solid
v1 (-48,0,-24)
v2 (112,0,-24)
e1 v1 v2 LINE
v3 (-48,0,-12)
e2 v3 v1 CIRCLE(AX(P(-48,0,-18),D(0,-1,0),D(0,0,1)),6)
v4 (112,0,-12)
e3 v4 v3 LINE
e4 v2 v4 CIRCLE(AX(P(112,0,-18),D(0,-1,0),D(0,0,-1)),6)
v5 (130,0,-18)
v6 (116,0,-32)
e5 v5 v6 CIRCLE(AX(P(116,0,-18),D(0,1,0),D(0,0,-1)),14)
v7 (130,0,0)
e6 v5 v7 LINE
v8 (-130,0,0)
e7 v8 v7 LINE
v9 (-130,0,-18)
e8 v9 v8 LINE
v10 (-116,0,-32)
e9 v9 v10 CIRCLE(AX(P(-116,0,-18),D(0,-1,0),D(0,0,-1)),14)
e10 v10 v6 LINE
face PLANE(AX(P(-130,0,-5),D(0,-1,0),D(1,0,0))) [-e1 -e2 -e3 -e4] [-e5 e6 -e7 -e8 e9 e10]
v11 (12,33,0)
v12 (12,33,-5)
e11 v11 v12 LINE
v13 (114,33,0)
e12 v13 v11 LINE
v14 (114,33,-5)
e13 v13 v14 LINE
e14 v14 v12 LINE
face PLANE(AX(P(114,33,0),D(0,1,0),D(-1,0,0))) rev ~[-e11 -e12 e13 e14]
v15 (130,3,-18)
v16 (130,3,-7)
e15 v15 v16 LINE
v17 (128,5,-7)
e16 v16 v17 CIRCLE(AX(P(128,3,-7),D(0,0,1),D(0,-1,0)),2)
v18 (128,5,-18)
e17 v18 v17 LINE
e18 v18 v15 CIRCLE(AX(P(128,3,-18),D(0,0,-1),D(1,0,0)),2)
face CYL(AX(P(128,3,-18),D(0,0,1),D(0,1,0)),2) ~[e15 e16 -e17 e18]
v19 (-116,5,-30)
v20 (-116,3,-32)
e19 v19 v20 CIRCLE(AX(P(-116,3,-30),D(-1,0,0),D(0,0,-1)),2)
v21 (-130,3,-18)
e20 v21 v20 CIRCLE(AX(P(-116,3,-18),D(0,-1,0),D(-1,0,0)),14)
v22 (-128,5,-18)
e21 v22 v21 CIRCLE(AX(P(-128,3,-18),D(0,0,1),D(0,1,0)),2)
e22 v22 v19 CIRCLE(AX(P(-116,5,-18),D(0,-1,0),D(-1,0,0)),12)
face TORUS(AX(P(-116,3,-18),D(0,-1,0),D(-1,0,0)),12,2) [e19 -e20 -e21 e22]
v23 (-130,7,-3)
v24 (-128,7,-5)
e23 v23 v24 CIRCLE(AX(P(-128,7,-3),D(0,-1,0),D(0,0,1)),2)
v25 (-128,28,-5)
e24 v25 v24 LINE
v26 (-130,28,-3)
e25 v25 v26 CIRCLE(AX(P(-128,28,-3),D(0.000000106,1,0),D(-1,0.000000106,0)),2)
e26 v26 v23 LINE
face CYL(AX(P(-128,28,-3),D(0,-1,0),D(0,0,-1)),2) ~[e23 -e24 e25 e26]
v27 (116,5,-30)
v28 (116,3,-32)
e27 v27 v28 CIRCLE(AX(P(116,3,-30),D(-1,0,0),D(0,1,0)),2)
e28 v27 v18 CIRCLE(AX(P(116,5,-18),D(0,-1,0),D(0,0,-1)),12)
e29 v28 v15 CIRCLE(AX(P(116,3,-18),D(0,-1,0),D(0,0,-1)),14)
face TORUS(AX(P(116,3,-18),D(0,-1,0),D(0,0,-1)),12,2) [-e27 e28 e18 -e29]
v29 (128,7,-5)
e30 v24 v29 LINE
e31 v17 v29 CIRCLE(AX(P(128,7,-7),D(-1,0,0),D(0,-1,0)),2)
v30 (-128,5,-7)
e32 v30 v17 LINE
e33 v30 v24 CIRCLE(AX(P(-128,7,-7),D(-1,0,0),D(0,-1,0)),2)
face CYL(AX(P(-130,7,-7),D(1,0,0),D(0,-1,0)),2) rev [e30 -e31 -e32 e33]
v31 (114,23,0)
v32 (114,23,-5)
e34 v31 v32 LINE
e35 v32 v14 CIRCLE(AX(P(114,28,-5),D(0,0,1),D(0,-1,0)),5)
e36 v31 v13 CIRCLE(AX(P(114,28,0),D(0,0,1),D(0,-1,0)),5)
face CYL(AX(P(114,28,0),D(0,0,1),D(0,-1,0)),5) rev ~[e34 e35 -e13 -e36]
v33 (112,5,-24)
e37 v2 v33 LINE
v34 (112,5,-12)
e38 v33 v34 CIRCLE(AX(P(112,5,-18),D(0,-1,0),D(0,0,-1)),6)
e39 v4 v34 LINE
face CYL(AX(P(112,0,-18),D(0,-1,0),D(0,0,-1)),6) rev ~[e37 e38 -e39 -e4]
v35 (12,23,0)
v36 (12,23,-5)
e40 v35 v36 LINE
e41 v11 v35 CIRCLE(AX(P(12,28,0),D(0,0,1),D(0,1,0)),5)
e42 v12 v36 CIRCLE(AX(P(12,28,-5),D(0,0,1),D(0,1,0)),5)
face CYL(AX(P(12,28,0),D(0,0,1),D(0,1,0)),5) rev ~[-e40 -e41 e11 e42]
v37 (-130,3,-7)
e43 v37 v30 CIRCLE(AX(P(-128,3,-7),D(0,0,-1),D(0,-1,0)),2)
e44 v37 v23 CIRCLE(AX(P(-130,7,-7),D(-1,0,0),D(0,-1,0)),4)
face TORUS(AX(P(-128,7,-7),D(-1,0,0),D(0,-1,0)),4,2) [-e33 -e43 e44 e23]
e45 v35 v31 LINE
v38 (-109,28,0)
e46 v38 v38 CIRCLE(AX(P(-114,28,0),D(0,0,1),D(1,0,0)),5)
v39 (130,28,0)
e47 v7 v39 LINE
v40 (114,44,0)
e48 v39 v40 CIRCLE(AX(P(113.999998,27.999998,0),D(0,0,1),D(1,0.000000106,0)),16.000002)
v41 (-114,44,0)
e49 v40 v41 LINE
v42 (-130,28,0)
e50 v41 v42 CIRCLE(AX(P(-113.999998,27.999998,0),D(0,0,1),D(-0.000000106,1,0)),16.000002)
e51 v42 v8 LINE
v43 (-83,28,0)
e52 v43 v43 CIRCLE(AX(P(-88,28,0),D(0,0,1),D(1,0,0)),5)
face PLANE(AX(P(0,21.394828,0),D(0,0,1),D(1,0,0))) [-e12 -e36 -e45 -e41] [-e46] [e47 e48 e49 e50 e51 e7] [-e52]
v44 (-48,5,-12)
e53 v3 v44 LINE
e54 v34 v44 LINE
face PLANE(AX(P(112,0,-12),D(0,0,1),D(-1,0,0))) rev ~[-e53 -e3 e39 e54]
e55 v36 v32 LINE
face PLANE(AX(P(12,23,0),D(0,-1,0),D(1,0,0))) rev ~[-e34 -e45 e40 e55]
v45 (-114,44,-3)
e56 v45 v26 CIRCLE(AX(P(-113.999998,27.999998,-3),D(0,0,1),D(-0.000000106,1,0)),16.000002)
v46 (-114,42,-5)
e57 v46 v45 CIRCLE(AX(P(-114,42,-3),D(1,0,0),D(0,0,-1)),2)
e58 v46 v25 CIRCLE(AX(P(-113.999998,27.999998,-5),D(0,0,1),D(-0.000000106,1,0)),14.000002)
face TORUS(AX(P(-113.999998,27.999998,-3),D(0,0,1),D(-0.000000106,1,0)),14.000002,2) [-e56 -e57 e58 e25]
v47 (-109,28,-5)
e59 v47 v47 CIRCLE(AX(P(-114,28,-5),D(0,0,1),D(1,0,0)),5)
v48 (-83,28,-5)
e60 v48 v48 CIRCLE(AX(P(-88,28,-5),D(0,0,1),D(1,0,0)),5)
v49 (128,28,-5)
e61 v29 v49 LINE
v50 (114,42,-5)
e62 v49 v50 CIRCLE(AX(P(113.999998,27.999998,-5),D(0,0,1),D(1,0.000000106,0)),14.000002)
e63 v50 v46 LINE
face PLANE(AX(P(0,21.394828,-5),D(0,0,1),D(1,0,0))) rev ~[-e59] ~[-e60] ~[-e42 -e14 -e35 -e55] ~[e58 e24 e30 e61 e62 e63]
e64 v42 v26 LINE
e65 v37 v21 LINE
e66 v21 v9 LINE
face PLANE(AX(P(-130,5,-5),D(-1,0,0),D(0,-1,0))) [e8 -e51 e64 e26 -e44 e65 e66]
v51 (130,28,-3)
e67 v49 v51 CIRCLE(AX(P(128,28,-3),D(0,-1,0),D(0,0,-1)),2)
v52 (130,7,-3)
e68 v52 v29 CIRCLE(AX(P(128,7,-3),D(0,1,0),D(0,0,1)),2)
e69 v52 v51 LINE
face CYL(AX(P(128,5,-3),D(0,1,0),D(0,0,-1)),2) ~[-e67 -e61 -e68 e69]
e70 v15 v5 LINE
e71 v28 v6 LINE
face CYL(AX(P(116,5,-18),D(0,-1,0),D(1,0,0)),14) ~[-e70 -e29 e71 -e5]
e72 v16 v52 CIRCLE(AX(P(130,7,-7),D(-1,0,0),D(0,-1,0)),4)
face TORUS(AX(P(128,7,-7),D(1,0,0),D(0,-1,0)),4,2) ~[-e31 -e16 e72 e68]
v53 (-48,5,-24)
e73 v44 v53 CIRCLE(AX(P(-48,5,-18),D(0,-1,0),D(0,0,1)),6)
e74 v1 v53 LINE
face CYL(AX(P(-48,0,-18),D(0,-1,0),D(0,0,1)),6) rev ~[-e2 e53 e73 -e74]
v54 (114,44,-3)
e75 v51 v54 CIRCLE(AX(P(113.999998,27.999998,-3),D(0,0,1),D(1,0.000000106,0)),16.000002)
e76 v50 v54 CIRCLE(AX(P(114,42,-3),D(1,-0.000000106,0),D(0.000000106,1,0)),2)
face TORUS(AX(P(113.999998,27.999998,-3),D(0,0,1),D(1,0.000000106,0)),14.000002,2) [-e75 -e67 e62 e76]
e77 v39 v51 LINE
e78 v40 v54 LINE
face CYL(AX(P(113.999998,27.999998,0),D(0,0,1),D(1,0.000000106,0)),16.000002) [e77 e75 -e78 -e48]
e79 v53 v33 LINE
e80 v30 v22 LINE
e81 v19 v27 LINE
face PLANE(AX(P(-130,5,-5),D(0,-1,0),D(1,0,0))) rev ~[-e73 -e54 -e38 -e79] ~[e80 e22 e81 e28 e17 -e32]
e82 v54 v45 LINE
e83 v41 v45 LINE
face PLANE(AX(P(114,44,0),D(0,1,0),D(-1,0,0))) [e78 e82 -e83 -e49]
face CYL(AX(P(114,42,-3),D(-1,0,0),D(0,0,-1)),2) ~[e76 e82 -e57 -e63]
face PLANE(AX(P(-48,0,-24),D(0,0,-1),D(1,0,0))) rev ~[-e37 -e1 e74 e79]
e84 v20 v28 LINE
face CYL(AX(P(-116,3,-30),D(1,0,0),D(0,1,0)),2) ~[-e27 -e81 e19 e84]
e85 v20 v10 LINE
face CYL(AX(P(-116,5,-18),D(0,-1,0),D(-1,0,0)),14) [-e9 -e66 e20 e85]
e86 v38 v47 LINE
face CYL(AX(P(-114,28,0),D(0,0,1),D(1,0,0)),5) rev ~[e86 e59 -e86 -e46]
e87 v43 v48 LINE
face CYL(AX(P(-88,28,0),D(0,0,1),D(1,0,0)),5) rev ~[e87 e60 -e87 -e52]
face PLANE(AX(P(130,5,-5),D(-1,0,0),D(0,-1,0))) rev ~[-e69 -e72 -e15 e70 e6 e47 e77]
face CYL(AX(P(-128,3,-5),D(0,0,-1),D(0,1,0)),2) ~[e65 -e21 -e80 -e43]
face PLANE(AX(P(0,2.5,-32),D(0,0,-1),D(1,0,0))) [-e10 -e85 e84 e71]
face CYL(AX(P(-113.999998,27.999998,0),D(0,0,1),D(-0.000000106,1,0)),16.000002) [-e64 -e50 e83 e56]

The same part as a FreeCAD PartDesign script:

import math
import FreeCAD as App
import Part
import Sketcher


def edges_at(feature, points):
    """Names of the edges that pass closest to the given points."""
    edges = feature.Shape.Edges
    near = lambda p: min(range(len(edges)), key=lambda i: edges[i].distToShape(Part.Vertex(*p))[0])
    return sorted({f"Edge{near(p) + 1}" for p in points})

doc = App.newDocument("Part")
body = doc.addObject("PartDesign::Body", "Body")

# Sketch on XY plane
sketch1 = doc.addObject("Sketcher::SketchObject", "Sketch")
body.addObject(sketch1)
sketch1.AttachmentSupport = (doc.XY_Plane, [""])
sketch1.MapMode = "FlatFace"
sketch1.addGeometry([
    Part.LineSegment(App.Vector(-130, 0, 0), App.Vector(130, 0, 0)),  # 0
    Part.LineSegment(App.Vector(130, 0, 0), App.Vector(130, 28, 0)),  # 1
    Part.ArcOfCircle(Part.Circle(App.Vector(114, 28, 0), App.Vector(0, 0, 1), 16), math.radians(0), math.radians(90)),  # 2
    Part.LineSegment(App.Vector(114, 44, 0), App.Vector(-114, 44, 0)),  # 3
    Part.ArcOfCircle(Part.Circle(App.Vector(-114, 28, 0), App.Vector(0, 0, 1), 16), math.radians(90), math.radians(180)),  # 4
    Part.LineSegment(App.Vector(-130, 28, 0), App.Vector(-130, 0, 0)),  # 5
], False)
sketch1.addConstraint([
    Sketcher.Constraint("Coincident", 0, 2, 1, 1),
    Sketcher.Constraint("Tangent", 1, 2, 2, 1),
    Sketcher.Constraint("Tangent", 2, 2, 3, 1),
    Sketcher.Constraint("Tangent", 3, 2, 4, 1),
    Sketcher.Constraint("Tangent", 4, 2, 5, 1),
    Sketcher.Constraint("Coincident", 5, 2, 0, 1),
    Sketcher.Constraint("Horizontal", 0),
    Sketcher.Constraint("Vertical", 1),
    Sketcher.Constraint("Horizontal", 3),
    Sketcher.Constraint("Vertical", 5),
    Sketcher.Constraint("Equal", 2, 4),
    Sketcher.Constraint("Symmetric", 0, 2, 5, 2, -1, 1),
    Sketcher.Constraint("Radius", 2, 16.000002),
    Sketcher.Constraint("DistanceX", 0, 1, 0, 2, 260.0),
    Sketcher.Constraint("DistanceY", 1, 1, 1, 2, 28.0),
])
pad1 = doc.addObject("PartDesign::Pad", "Pad")
body.addObject(pad1)
pad1.Profile = sketch1
pad1.Length = 5
pad1.Reversed = True

# Sketch on XY plane
sketch2 = doc.addObject("Sketcher::SketchObject", "Sketch001")
body.addObject(sketch2)
sketch2.AttachmentSupport = (doc.XY_Plane, [""])
sketch2.MapMode = "FlatFace"
sketch2.addGeometry([
    Part.LineSegment(App.Vector(12, 23, 0), App.Vector(114, 23, 0)),  # 0
    Part.ArcOfCircle(Part.Circle(App.Vector(114, 28, 0), App.Vector(0, 0, 1), 5), math.radians(-90), math.radians(90)),  # 1
    Part.LineSegment(App.Vector(114, 33, 0), App.Vector(12, 33, 0)),  # 2
    Part.ArcOfCircle(Part.Circle(App.Vector(12, 28, 0), App.Vector(0, 0, 1), 5), math.radians(90), math.radians(270)),  # 3
    Part.Circle(App.Vector(-88, 28, 0), App.Vector(0, 0, 1), 5),  # 4
    Part.Circle(App.Vector(-114, 28, 0), App.Vector(0, 0, 1), 5),  # 5
], False)
sketch2.addConstraint([
    Sketcher.Constraint("Tangent", 0, 2, 1, 1),
    Sketcher.Constraint("Tangent", 1, 2, 2, 1),
    Sketcher.Constraint("Tangent", 2, 2, 3, 1),
    Sketcher.Constraint("Tangent", 3, 2, 0, 1),
    Sketcher.Constraint("Horizontal", 0),
    Sketcher.Constraint("Horizontal", 2),
    Sketcher.Constraint("Equal", 3, 4),
    Sketcher.Constraint("Equal", 4, 5),
    Sketcher.Constraint("Symmetric", 1, 3, 5, 3, -2),
    Sketcher.Constraint("Horizontal", 3, 3, 4, 3),
    Sketcher.Constraint("Diameter", 4, 10.0),
    Sketcher.Constraint("DistanceX", 0, 1, 0, 2, 102.0),
    Sketcher.Constraint("DistanceX", -1, 1, 1, 3, 114.0),
    Sketcher.Constraint("DistanceY", -1, 1, 1, 3, 28.0),
    Sketcher.Constraint("DistanceX", 4, 3, -1, 1, 88.0),
])
pocket1 = doc.addObject("PartDesign::Pocket", "Pocket")
body.addObject(pocket1)
pocket1.Profile = sketch2
pocket1.Length = 5

# Sketch on XY plane
sketch3 = doc.addObject("Sketcher::SketchObject", "Sketch002")
body.addObject(sketch3)
sketch3.AttachmentSupport = (doc.XY_Plane, [""])
sketch3.MapMode = "FlatFace"
sketch3.AttachmentOffset = App.Placement(App.Vector(0, 0, -5), App.Rotation())
sketch3.addGeometry([
    Part.LineSegment(App.Vector(-130, 0, 0), App.Vector(-130, 5, 0)),
    Part.LineSegment(App.Vector(-130, 5, 0), App.Vector(130, 5, 0)),
    Part.LineSegment(App.Vector(130, 5, 0), App.Vector(130, 0, 0)),
    Part.LineSegment(App.Vector(130, 0, 0), App.Vector(-130, 0, 0)),
], False)
sketch3.addConstraint([
    Sketcher.Constraint("Coincident", 0, 2, 1, 1),
    Sketcher.Constraint("Coincident", 1, 2, 2, 1),
    Sketcher.Constraint("Coincident", 2, 2, 3, 1),
    Sketcher.Constraint("Coincident", 3, 2, 0, 1),
    Sketcher.Constraint("Vertical", 0),
    Sketcher.Constraint("Horizontal", 1),
    Sketcher.Constraint("Vertical", 2),
    Sketcher.Constraint("Horizontal", 3),
    Sketcher.Constraint("Symmetric", 2, 2, 3, 2, -1, 1),
    Sketcher.Constraint("DistanceX", 1, 1, 1, 2, 260.0),
    Sketcher.Constraint("DistanceY", 0, 1, 0, 2, 5.0),
])
pad2 = doc.addObject("PartDesign::Pad", "Pad001")
body.addObject(pad2)
pad2.Profile = sketch3
pad2.Length = 27
pad2.Reversed = True
doc.recompute()

fillet = doc.addObject("PartDesign::Fillet", "Fillet")
body.addObject(fillet)
fillet.Base = (pad2, edges_at(pad2, [(130, 2.5, -32), (-130, 2.5, -32)]))
fillet.Radius = 14

# Sketch on XZ plane
sketch4 = doc.addObject("Sketcher::SketchObject", "Sketch003")
body.addObject(sketch4)
sketch4.AttachmentSupport = (doc.XZ_Plane, [""])
sketch4.MapMode = "FlatFace"
sketch4.addGeometry([
    Part.ArcOfCircle(Part.Circle(App.Vector(112, -18, 0), App.Vector(0, 0, 1), 6), math.radians(-90), math.radians(90)),
    Part.LineSegment(App.Vector(112, -12, 0), App.Vector(-48, -12, 0)),
    Part.ArcOfCircle(Part.Circle(App.Vector(-48, -18, 0), App.Vector(0, 0, 1), 6), math.radians(90), math.radians(270)),
    Part.LineSegment(App.Vector(-48, -24, 0), App.Vector(112, -24, 0)),
], False)
sketch4.addConstraint([
    Sketcher.Constraint("Tangent", 0, 2, 1, 1),
    Sketcher.Constraint("Tangent", 1, 2, 2, 1),
    Sketcher.Constraint("Tangent", 2, 2, 3, 1),
    Sketcher.Constraint("Tangent", 3, 2, 0, 1),
    Sketcher.Constraint("Horizontal", 1),
    Sketcher.Constraint("Horizontal", 3),
    Sketcher.Constraint("Radius", 0, 6.0),
    Sketcher.Constraint("DistanceX", 1, 2, 1, 1, 160.0),
    Sketcher.Constraint("DistanceX", -1, 1, 0, 3, 112.0),
    Sketcher.Constraint("DistanceY", 0, 3, -1, 1, 18.0),
])
pocket2 = doc.addObject("PartDesign::Pocket", "Pocket001")
body.addObject(pocket2)
pocket2.Profile = sketch4
pocket2.Length = 5
doc.recompute()

fillet2 = doc.addObject("PartDesign::Fillet", "Fillet001")
body.addObject(fillet2)
fillet2.Base = (pocket2, edges_at(pocket2, [(0, 5, -32), (0, 44, -5), (0, 5, -5)]))
fillet2.Radius = 2

doc.recompute()
